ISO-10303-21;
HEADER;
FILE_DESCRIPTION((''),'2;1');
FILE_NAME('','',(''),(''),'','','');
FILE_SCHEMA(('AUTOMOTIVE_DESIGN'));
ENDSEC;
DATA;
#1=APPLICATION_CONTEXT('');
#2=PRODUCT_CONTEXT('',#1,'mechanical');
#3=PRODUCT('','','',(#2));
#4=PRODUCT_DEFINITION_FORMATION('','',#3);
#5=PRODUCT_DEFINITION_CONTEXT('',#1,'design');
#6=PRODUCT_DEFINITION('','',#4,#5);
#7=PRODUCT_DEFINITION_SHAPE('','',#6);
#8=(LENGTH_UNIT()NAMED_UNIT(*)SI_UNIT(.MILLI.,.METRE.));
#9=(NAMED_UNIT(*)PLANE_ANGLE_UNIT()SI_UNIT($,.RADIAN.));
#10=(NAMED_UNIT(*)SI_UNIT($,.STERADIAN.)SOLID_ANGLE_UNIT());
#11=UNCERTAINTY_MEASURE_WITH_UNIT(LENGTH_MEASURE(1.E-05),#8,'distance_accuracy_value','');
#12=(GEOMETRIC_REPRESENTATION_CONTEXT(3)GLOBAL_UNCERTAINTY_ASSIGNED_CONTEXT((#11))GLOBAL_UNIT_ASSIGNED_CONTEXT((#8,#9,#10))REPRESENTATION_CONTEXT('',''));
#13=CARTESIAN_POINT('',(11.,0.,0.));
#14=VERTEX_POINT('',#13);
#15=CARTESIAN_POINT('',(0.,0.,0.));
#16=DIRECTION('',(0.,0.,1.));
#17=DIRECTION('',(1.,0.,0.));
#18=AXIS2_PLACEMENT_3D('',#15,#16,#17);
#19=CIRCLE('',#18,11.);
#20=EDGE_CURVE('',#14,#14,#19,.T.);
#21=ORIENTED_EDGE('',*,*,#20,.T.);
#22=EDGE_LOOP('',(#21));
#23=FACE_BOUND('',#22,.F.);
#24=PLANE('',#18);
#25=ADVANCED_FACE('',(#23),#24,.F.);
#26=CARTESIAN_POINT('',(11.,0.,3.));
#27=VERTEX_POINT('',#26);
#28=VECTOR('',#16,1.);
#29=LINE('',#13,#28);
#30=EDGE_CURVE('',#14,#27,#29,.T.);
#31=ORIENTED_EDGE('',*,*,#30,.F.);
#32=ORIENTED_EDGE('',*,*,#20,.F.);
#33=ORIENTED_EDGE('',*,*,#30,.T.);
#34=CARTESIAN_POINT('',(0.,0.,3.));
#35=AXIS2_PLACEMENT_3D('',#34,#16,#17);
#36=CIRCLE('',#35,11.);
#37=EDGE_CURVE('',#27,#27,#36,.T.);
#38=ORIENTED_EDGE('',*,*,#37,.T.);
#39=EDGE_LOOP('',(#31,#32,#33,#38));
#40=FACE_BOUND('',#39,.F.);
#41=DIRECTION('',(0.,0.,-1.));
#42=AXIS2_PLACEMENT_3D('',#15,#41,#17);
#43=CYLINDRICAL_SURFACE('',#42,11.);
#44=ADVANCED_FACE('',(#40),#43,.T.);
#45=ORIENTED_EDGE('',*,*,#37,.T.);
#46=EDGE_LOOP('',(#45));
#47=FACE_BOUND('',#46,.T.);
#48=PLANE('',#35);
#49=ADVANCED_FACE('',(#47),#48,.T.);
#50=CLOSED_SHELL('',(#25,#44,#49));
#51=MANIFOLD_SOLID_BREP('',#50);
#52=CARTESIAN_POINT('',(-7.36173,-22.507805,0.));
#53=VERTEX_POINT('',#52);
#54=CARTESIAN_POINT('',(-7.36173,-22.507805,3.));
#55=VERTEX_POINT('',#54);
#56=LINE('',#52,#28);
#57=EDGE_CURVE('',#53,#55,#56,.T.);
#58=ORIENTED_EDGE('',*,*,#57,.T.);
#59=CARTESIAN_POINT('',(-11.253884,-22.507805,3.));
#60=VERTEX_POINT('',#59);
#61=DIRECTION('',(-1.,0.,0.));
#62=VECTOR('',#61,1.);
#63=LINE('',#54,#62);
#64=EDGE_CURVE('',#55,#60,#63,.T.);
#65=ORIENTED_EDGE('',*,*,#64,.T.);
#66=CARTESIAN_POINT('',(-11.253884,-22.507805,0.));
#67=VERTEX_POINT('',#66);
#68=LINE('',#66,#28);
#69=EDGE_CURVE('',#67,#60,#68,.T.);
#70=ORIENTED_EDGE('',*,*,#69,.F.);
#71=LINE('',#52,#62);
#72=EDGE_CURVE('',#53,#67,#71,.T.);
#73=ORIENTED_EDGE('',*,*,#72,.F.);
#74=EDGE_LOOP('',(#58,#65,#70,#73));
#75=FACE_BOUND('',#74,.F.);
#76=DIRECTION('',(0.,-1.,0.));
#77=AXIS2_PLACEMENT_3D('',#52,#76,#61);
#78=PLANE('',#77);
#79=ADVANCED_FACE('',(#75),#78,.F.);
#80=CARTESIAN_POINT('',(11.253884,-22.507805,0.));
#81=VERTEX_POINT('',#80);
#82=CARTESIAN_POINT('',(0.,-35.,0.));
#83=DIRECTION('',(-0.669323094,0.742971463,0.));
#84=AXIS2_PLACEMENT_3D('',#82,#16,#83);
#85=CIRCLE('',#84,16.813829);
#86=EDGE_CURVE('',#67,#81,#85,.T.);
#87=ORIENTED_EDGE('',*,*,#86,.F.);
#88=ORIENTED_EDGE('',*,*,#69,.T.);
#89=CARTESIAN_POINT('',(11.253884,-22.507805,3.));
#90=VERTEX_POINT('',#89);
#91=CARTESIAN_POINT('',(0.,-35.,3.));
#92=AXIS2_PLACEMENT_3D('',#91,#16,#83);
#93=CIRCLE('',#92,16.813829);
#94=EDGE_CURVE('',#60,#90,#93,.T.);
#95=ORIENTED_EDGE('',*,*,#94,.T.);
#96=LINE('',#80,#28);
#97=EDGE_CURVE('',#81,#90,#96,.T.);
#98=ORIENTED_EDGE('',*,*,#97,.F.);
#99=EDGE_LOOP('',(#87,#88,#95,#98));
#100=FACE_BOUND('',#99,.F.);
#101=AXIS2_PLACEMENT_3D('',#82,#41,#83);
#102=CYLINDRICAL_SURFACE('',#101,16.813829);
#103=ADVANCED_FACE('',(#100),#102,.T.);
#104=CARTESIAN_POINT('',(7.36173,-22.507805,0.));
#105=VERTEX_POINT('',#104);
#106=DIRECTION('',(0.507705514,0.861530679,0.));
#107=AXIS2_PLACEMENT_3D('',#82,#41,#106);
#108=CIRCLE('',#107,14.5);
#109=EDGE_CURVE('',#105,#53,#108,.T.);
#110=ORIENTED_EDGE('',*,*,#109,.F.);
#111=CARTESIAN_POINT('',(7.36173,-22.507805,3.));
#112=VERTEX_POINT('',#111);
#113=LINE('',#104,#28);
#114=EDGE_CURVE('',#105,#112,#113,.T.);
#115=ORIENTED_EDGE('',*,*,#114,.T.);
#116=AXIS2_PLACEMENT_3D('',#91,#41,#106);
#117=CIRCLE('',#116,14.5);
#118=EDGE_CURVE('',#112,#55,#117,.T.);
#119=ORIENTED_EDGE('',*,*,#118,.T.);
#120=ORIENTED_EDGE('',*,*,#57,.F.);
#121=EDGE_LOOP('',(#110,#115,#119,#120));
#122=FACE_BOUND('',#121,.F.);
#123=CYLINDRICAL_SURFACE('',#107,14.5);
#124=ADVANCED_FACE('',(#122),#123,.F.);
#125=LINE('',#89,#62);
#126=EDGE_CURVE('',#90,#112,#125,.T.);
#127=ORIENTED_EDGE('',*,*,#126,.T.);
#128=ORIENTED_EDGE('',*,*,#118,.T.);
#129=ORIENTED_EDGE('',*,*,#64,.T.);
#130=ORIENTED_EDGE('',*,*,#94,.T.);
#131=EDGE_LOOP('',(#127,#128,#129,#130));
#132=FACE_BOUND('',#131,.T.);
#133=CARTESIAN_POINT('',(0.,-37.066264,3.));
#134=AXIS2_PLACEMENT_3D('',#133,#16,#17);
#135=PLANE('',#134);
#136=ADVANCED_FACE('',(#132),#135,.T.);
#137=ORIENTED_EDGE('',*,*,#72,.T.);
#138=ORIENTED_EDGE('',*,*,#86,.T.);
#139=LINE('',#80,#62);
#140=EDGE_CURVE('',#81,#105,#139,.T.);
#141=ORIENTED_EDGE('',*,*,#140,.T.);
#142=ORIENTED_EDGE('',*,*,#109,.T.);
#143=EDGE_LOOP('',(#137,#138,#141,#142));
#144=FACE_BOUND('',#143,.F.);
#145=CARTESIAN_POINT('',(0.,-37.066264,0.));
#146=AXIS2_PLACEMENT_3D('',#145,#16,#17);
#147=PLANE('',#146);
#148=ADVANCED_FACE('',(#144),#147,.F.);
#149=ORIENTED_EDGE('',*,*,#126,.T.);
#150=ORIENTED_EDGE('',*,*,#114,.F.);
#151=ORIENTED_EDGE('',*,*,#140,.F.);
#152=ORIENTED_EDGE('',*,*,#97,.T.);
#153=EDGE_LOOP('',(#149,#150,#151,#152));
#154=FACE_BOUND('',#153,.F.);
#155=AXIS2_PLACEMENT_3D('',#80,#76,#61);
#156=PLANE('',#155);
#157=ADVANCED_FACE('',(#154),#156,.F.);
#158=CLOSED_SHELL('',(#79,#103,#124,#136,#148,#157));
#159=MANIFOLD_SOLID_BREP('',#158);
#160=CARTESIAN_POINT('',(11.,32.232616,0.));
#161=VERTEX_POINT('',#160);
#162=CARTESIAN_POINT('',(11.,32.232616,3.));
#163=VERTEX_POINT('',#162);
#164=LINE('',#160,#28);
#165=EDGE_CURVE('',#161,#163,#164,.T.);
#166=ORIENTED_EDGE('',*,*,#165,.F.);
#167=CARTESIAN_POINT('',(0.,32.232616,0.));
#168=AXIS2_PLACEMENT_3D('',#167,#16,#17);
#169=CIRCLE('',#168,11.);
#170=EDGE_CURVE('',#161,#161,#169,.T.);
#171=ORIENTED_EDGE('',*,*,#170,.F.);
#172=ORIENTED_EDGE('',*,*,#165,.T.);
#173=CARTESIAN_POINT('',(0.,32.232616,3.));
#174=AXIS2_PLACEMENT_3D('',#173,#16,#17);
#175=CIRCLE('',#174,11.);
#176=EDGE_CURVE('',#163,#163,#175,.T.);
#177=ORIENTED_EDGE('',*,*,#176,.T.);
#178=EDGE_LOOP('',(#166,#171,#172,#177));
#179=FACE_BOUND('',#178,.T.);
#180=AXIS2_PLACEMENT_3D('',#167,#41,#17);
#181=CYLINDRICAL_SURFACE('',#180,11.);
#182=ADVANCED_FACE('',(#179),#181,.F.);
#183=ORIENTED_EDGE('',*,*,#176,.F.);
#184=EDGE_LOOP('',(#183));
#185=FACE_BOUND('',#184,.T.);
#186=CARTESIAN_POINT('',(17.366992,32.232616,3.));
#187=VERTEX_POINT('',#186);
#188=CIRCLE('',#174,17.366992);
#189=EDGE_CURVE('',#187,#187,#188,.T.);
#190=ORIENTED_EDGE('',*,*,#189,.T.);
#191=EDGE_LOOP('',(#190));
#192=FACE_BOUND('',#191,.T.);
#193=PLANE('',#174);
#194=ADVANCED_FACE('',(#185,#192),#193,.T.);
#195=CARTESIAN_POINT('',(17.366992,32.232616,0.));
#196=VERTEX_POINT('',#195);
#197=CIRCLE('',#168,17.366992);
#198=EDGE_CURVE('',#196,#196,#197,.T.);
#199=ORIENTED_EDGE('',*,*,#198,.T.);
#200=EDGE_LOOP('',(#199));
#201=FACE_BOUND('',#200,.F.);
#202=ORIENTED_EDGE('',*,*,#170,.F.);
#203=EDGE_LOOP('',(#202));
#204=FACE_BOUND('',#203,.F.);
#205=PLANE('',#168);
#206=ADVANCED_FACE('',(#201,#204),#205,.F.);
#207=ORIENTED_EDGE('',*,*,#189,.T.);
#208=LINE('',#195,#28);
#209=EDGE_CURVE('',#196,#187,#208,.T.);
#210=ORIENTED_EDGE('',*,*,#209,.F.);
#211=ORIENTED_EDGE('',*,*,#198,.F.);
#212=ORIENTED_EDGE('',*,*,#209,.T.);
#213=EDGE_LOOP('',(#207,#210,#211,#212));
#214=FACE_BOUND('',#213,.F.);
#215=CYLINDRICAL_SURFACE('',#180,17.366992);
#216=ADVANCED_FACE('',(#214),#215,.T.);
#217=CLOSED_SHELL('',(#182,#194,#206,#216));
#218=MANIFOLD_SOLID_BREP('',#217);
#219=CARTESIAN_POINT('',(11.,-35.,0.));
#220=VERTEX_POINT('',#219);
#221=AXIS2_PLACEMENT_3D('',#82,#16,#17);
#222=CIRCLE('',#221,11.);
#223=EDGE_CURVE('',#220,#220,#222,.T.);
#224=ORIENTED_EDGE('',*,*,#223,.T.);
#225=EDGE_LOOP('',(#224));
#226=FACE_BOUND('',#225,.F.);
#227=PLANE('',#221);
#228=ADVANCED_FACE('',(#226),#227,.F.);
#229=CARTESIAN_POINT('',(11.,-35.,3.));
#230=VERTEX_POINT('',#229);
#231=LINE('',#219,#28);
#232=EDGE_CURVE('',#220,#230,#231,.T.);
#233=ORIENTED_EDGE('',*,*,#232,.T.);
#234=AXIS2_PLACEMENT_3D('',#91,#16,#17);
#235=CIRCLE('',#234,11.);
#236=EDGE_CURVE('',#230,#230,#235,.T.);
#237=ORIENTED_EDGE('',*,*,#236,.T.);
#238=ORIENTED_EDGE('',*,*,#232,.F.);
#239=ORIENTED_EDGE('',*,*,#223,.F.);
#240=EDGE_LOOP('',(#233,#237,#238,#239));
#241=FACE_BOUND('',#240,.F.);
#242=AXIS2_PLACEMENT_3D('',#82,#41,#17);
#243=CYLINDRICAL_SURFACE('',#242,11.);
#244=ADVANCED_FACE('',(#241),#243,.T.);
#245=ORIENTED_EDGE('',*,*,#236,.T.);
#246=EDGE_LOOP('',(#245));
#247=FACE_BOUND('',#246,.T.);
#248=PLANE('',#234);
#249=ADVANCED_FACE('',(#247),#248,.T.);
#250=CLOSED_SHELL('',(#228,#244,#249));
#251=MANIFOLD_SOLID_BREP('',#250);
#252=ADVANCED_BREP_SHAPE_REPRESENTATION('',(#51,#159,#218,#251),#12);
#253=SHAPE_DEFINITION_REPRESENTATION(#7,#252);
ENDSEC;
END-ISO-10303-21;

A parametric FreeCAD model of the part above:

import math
import FreeCAD as App
import Part
import Sketcher

doc = App.newDocument("Part")
body = doc.addObject("PartDesign::Body", "Body")
body.AllowCompound = True

sketch1 = body.newObject("Sketcher::SketchObject", "Sketch")
sketch1.AttachmentSupport = (doc.getObject("XY_Plane"), [""])
sketch1.MapMode = "FlatFace"
sketch1.addGeometry([
    Part.Circle(App.Vector(0, 0, 0), App.Vector(0, 0, 1), 11),
    Part.LineSegment(App.Vector(11.3, -22.5, 0), App.Vector(7.4, -22.5, 0)),
    Part.ArcOfCircle(Part.Circle(App.Vector(0, -35, 0), App.Vector(0, 0, 1), 14.5), math.radians(121), math.radians(419)),
    Part.LineSegment(App.Vector(-7.4, -22.5, 0), App.Vector(-11.3, -22.5, 0)),
    Part.ArcOfCircle(Part.Circle(App.Vector(0, -35, 0), App.Vector(0, 0, 1), 16.8), math.radians(132), math.radians(408)),
    Part.Circle(App.Vector(0, -35, 0), App.Vector(0, 0, 1), 11),
    Part.Circle(App.Vector(0, 32.2, 0), App.Vector(0, 0, 1), 17.4),
    Part.Circle(App.Vector(0, 32.2, 0), App.Vector(0, 0, 1), 11),
], False)
sketch1.addConstraint([
    Sketcher.Constraint("Coincident", 1, 2, 2, 2),
    Sketcher.Constraint("Coincident", 2, 1, 3, 1),
    Sketcher.Constraint("Coincident", 3, 2, 4, 1),
    Sketcher.Constraint("Coincident", 4, 2, 1, 1),
    Sketcher.Constraint("Horizontal", 1),
    Sketcher.Constraint("Horizontal", 3),
    Sketcher.Constraint("Coincident", 0, 3, -1, 1),
    Sketcher.Constraint("Coincident", 4, 3, 2, 3),
    Sketcher.Constraint("Coincident", 5, 3, 2, 3),
    Sketcher.Constraint("Coincident", 7, 3, 6, 3),
    Sketcher.Constraint("Equal", 0, 5),
    Sketcher.Constraint("Equal", 5, 7),
    Sketcher.Constraint("Symmetric", 1, 2, 2, 1, -2),
    Sketcher.Constraint("PointOnObject", 6, 3, -2),
    Sketcher.Constraint("Diameter", 0, 22.0),
    Sketcher.Constraint("Radius", 2, 14.5),
    Sketcher.Constraint("DistanceY", 2, 3, -1, 1, 35.0),
    Sketcher.Constraint("Radius", 4, 16.813829),
    Sketcher.Constraint("Diameter", 6, 34.733984),
    Sketcher.Constraint("DistanceX", 1, 2, 1, 1, 3.892154),
    Sketcher.Constraint("DistanceY", 1, 2, 6, 3, 54.740421),
])
pad1 = body.newObject("PartDesign::Pad", "Pad")
pad1.Profile = sketch1
pad1.Length = 3

doc.recompute()
